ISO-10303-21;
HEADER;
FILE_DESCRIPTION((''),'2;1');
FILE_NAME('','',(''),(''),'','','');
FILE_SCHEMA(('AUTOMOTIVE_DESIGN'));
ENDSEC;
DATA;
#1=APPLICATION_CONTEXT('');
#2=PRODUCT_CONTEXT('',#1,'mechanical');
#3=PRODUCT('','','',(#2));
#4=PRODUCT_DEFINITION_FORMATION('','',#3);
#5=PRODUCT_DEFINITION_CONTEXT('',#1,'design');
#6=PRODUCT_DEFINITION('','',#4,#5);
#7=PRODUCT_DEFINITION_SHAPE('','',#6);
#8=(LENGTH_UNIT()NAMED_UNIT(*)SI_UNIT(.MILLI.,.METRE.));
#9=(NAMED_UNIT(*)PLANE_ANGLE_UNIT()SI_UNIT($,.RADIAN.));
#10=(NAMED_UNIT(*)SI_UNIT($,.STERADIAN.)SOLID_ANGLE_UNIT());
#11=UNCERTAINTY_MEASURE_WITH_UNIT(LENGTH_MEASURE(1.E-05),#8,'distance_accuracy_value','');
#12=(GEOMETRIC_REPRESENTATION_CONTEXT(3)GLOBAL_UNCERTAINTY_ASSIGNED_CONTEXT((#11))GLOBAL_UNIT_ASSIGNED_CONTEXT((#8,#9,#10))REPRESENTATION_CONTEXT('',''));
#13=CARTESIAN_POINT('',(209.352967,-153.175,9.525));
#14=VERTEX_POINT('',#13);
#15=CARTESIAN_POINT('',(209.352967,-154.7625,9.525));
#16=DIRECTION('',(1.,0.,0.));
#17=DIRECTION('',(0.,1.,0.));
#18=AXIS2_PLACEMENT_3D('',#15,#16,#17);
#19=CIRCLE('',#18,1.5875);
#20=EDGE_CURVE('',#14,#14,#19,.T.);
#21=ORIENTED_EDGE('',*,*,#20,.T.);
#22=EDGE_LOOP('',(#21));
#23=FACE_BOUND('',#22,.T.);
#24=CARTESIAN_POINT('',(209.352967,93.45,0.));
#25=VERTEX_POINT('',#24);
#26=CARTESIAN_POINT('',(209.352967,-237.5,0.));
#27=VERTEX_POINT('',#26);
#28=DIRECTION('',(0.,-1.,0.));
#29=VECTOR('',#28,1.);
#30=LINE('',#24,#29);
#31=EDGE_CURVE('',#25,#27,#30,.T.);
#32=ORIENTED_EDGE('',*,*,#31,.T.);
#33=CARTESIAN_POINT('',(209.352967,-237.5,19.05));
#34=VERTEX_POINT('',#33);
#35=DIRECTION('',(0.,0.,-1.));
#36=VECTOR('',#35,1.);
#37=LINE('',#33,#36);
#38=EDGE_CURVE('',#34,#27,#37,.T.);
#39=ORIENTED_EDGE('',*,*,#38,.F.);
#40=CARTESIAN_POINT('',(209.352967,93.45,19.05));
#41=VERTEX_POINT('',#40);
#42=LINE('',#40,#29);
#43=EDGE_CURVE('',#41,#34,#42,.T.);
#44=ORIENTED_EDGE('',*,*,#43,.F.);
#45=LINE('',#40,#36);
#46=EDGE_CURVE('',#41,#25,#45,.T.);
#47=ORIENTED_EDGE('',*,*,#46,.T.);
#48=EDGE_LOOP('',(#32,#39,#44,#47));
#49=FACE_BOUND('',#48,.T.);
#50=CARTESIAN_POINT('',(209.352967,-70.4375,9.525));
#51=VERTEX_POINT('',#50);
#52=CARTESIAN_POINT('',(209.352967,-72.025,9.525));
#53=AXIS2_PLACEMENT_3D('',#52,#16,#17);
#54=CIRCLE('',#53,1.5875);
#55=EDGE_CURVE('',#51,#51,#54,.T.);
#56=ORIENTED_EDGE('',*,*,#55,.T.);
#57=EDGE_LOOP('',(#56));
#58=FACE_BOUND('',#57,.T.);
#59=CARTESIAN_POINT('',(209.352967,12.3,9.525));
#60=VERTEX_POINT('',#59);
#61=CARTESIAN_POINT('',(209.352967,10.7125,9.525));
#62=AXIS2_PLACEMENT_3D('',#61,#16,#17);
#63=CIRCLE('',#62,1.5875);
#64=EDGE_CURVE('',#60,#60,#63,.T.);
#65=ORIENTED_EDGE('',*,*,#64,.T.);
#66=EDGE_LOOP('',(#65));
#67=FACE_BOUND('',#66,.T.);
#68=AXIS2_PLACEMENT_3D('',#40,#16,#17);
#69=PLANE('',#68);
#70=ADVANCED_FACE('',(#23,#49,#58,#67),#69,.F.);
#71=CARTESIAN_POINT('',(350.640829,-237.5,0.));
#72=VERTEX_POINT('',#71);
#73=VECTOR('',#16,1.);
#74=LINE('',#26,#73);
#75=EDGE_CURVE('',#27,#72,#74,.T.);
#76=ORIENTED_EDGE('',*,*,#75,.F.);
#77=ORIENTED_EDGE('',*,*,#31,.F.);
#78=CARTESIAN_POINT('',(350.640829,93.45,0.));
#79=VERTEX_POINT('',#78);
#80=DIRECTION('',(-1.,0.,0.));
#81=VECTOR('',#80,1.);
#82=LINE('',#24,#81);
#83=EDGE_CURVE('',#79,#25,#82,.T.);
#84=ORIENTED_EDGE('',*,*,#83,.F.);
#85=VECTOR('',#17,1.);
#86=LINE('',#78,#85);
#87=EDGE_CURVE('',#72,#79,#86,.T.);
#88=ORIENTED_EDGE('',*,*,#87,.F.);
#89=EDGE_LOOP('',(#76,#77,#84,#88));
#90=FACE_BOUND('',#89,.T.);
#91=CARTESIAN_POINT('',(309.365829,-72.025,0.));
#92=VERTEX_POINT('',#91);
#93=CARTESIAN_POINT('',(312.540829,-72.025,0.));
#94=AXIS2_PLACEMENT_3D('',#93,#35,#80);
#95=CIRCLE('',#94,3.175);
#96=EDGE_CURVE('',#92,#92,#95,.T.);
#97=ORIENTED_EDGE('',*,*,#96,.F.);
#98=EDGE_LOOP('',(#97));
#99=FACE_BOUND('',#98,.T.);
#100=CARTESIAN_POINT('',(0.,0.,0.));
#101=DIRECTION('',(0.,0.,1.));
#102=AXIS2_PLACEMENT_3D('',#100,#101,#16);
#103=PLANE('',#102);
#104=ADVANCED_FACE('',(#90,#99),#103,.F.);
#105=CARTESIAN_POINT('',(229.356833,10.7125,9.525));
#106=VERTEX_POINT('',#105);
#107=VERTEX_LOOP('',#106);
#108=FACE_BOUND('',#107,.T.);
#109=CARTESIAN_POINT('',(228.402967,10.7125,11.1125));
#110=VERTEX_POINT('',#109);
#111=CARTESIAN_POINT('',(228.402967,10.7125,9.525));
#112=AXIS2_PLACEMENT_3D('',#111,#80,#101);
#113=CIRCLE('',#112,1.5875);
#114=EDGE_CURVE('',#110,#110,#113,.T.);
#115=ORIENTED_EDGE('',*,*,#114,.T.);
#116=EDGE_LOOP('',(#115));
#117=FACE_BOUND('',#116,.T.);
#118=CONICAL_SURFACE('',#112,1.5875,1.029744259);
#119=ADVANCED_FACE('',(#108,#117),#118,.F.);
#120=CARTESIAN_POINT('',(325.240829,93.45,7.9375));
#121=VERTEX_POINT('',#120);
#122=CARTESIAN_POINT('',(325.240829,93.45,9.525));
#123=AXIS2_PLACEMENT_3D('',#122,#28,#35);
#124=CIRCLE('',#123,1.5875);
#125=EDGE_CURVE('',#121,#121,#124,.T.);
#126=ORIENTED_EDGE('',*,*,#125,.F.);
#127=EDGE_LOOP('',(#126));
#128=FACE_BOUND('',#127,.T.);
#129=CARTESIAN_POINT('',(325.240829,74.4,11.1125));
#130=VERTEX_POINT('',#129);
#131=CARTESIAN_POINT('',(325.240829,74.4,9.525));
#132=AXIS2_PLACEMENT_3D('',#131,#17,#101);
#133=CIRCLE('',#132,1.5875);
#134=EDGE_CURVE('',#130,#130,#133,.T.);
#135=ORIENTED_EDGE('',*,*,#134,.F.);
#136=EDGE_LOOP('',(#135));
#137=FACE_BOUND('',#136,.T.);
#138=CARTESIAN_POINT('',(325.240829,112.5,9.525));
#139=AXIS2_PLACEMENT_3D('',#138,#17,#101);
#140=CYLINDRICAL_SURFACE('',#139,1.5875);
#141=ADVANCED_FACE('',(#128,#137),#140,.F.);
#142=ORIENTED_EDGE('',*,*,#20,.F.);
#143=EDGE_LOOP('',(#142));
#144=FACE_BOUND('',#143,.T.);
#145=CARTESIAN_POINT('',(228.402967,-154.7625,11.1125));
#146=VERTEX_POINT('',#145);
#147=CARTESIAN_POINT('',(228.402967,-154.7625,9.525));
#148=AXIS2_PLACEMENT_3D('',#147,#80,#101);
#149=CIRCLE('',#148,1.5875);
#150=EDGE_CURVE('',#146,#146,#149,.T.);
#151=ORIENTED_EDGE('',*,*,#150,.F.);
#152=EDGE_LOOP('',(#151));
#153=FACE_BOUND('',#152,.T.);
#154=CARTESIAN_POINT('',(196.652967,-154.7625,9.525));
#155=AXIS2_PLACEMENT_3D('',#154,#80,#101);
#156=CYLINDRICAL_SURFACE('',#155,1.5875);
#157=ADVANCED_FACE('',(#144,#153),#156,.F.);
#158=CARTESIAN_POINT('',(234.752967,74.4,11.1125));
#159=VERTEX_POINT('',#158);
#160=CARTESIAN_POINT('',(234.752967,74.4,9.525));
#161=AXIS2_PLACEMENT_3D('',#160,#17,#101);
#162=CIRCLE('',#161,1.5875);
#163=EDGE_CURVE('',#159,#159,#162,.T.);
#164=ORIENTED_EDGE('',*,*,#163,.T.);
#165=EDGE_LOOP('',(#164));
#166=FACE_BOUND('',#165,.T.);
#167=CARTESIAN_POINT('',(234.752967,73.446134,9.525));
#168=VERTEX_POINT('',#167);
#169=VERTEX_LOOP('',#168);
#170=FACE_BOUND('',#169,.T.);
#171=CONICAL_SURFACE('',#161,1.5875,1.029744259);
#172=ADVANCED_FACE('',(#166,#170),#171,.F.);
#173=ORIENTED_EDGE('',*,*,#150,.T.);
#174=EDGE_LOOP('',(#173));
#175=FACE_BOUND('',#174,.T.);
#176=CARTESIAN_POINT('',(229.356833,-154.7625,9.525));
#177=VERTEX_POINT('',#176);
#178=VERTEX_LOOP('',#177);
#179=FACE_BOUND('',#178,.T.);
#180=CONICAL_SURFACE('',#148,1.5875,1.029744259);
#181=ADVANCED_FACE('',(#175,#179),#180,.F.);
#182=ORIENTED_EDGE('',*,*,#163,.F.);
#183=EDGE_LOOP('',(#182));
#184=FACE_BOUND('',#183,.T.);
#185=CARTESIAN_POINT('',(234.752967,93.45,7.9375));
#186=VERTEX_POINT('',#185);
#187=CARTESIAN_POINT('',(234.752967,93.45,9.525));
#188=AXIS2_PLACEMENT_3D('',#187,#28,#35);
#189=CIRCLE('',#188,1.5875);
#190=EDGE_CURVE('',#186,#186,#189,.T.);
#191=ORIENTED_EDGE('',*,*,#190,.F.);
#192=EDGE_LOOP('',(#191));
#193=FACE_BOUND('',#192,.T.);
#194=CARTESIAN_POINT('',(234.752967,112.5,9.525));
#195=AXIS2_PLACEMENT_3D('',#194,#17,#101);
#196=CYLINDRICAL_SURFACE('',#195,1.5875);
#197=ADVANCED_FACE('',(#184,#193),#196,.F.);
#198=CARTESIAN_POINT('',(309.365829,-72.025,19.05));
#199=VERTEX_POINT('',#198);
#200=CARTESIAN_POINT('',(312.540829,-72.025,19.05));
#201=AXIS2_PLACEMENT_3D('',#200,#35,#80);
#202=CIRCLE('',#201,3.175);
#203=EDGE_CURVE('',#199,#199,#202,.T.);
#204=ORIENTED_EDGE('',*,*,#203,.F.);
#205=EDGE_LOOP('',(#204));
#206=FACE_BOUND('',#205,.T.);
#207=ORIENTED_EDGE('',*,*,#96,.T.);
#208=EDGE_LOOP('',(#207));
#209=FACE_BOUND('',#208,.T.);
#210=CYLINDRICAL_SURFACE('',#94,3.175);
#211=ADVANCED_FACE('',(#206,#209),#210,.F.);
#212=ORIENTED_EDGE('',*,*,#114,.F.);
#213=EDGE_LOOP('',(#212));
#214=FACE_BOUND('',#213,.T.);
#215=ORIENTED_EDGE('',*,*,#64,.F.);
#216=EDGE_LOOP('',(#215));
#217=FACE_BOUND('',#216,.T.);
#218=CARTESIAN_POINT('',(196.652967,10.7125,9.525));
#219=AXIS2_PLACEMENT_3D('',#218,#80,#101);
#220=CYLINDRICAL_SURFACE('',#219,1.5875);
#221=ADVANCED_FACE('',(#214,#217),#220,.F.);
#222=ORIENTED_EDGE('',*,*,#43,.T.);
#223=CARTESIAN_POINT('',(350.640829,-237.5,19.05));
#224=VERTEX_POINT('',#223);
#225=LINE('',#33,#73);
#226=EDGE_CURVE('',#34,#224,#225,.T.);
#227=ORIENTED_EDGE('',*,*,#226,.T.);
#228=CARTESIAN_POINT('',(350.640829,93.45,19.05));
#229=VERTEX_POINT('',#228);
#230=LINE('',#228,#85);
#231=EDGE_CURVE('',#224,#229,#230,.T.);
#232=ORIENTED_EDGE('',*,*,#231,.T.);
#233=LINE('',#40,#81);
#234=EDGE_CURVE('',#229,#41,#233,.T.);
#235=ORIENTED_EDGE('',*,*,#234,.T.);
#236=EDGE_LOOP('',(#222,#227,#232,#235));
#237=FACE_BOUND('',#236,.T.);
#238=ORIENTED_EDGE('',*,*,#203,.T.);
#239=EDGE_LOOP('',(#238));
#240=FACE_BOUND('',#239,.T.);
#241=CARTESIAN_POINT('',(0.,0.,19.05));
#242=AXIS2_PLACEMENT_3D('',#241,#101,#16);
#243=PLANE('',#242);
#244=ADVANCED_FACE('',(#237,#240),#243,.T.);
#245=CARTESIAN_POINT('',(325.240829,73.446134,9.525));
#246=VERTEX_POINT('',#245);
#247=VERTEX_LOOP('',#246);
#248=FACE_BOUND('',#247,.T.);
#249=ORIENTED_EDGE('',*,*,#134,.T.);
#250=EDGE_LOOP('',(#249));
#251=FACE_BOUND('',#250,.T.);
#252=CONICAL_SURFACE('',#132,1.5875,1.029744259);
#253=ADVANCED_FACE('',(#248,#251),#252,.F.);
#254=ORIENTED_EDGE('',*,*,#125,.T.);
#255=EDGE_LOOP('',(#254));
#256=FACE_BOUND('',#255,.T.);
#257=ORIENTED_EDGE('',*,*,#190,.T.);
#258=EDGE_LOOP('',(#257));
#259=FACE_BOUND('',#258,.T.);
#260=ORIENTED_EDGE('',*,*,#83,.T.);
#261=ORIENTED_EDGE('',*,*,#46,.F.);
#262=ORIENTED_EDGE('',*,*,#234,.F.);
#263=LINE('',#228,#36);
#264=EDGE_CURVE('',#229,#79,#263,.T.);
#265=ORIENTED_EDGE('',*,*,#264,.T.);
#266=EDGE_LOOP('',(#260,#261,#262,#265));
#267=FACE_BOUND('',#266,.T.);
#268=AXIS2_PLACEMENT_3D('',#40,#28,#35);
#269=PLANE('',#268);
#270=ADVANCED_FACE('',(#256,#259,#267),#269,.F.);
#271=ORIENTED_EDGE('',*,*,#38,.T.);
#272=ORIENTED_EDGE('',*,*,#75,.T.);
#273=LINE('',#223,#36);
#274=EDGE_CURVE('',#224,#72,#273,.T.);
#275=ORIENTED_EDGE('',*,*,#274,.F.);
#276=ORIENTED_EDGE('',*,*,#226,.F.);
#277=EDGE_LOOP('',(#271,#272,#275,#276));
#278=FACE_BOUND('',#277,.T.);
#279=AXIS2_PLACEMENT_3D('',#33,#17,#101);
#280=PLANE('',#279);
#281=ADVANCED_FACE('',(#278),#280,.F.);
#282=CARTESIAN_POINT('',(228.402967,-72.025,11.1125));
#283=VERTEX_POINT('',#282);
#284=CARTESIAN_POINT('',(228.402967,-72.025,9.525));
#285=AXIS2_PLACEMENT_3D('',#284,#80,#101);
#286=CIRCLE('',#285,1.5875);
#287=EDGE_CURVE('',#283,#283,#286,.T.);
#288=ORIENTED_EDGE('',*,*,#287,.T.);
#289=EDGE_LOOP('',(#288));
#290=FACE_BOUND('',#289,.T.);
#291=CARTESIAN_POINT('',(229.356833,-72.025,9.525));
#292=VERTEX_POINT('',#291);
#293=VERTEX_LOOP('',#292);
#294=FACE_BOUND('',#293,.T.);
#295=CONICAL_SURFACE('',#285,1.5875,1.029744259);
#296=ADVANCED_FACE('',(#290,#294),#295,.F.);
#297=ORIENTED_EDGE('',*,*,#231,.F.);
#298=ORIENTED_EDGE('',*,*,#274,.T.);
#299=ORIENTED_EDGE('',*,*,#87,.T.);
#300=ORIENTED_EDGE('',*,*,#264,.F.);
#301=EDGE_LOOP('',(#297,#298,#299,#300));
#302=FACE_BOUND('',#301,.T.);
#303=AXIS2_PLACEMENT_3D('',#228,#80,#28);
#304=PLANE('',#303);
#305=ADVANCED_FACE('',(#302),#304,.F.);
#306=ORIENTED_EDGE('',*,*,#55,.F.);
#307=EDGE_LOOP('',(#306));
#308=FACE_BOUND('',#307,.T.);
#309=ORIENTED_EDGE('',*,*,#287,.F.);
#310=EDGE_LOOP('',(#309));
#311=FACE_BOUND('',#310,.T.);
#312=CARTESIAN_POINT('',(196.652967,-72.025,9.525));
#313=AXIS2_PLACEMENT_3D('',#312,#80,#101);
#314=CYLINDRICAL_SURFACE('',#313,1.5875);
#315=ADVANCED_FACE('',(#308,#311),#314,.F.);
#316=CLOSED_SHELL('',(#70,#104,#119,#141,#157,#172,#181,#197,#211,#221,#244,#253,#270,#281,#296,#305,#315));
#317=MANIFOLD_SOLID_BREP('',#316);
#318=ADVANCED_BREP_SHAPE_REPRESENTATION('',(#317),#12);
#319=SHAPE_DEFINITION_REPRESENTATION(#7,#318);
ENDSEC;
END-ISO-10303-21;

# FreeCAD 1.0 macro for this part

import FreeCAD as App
import Part
import Sketcher
Q = App.Units.Quantity

doc = App.newDocument("Part")
body = doc.addObject("PartDesign::Body", "Body")

# Sketch on XY plane
sketch1 = doc.addObject("Sketcher::SketchObject", "Sketch")
body.addObject(sketch1)
sketch1.AttachmentSupport = (doc.XY_Plane, [""])
sketch1.MapMode = "FlatFace"
sketch1.addGeometry(Part.LineSegment(App.Vector(209, 93, 0), App.Vector(209, -237, 0)), False)
sketch1.addGeometry(Part.LineSegment(App.Vector(209, -237, 0), App.Vector(351, -237, 0)), False)
sketch1.addGeometry(Part.LineSegment(App.Vector(351, -237, 0), App.Vector(351, 93, 0)), False)
sketch1.addGeometry(Part.LineSegment(App.Vector(351, 93, 0), App.Vector(209, 93, 0)), False)
sketch1.addConstraint(Sketcher.Constraint("Coincident", 0, 2, 1, 1))
sketch1.addConstraint(Sketcher.Constraint("Coincident", 1, 2, 2, 1))
sketch1.addConstraint(Sketcher.Constraint("Coincident", 2, 2, 3, 1))
sketch1.addConstraint(Sketcher.Constraint("Coincident", 3, 2, 0, 1))
sketch1.addConstraint(Sketcher.Constraint("Vertical", 0))
sketch1.addConstraint(Sketcher.Constraint("Horizontal", 1))
sketch1.addConstraint(Sketcher.Constraint("Vertical", 2))
sketch1.addConstraint(Sketcher.Constraint("Horizontal", 3))
sketch1.addConstraint(Sketcher.Constraint("DistanceY", 0, 2, 0, 1, Q("330.95 mm")))
sketch1.addConstraint(Sketcher.Constraint("DistanceY", 0, 2, -1, 1, Q("237.5 mm")))
sketch1.addConstraint(Sketcher.Constraint("DistanceX", 1, 1, 1, 2, Q("141.287862 mm")))
sketch1.addConstraint(Sketcher.Constraint("DistanceX", -1, 1, 1, 2, Q("350.640829 mm")))
pad1 = doc.addObject("PartDesign::Pad", "Pad")
body.addObject(pad1)
pad1.Profile = sketch1
pad1.Length = Q("0.75 in")

# Sketch on YZ plane
sketch2 = doc.addObject("Sketcher::SketchObject", "Sketch001")
body.addObject(sketch2)
sketch2.AttachmentSupport = (doc.YZ_Plane, [""])
sketch2.MapMode = "FlatFace"
sketch2.AttachmentOffset = App.Placement(App.Vector(0, 0, 196.652967), App.Rotation())
sketch2.addGeometry(Part.Circle(App.Vector(103, -299.7, 0), App.Vector(0, 0, 1), 1.6), False)
sketch2.addGeometry(Part.Circle(App.Vector(103, -163.6, 0), App.Vector(0, 0, 1), 1.6), False)
sketch2.addGeometry(Part.Circle(App.Vector(103, -27.5, 0), App.Vector(0, 0, 1), 1.6), False)
sketch2.addGeometry(Part.Circle(App.Vector(9.5, -393.4, 0), App.Vector(0, 0, 1), 1.6), False)
sketch2.addGeometry(Part.Circle(App.Vector(9.5, -266.1, 0), App.Vector(0, 0, 1), 1.6), False)
sketch2.addGeometry(Part.Circle(App.Vector(-9.5, -276.7, 0), App.Vector(0, 0, 1), 1.6), False)
sketch2.addGeometry(Part.Circle(App.Vector(-9.5, -382.8, 0), App.Vector(0, 0, 1), 1.6), False)
sketch2.addGeometry(Part.Circle(App.Vector(-134.5, -382.8, 0), App.Vector(0, 0, 1), 1.6), False)
sketch2.addGeometry(Part.Circle(App.Vector(-134.5, -276.7, 0), App.Vector(0, 0, 1), 1.6), False)
sketch2.addGeometry(Part.Circle(App.Vector(-153.6, -266.1, 0), App.Vector(0, 0, 1), 1.6), False)
sketch2.addGeometry(Part.Circle(App.Vector(-153.6, -393.4, 0), App.Vector(0, 0, 1), 1.6), False)
sketch2.addGeometry(Part.Circle(App.Vector(-247, -27.5, 0), App.Vector(0, 0, 1), 1.6), False)
sketch2.addGeometry(Part.Circle(App.Vector(-247, -163.6, 0), App.Vector(0, 0, 1), 1.6), False)
sketch2.addGeometry(Part.Circle(App.Vector(-247, -299.7, 0), App.Vector(0, 0, 1), 1.6), False)
sketch2.addGeometry(Part.Circle(App.Vector(-154.8, -214.1, 0), App.Vector(0, 0, 1), 1.6), False)
sketch2.addGeometry(Part.Circle(App.Vector(-72, -214.1, 0), App.Vector(0, 0, 1), 1.6), False)
sketch2.addGeometry(Part.Circle(App.Vector(10.7, -214.1, 0), App.Vector(0, 0, 1), 1.6), False)
sketch2.addGeometry(Part.Circle(App.Vector(-72, 9.5, 0), App.Vector(0, 0, 1), 1.6), False)
sketch2.addGeometry(Part.Circle(App.Vector(-154.8, 9.5, 0), App.Vector(0, 0, 1), 1.6), False)
sketch2.addGeometry(Part.Circle(App.Vector(10.7, 9.5, 0), App.Vector(0, 0, 1), 1.6), False)
sketch2.addConstraint(Sketcher.Constraint("Equal", 0, 1))
sketch2.addConstraint(Sketcher.Constraint("Equal", 1, 2))
sketch2.addConstraint(Sketcher.Constraint("Equal", 2, 3))
sketch2.addConstraint(Sketcher.Constraint("Equal", 3, 4))
sketch2.addConstraint(Sketcher.Constraint("Equal", 4, 5))
sketch2.addConstraint(Sketcher.Constraint("Equal", 5, 6))
sketch2.addConstraint(Sketcher.Constraint("Equal", 6, 7))
sketch2.addConstraint(Sketcher.Constraint("Equal", 7, 8))
sketch2.addConstraint(Sketcher.Constraint("Equal", 8, 9))
sketch2.addConstraint(Sketcher.Constraint("Equal", 9, 10))
sketch2.addConstraint(Sketcher.Constraint("Equal", 10, 11))
sketch2.addConstraint(Sketcher.Constraint("Equal", 11, 12))
sketch2.addConstraint(Sketcher.Constraint("Equal", 12, 13))
sketch2.addConstraint(Sketcher.Constraint("Equal", 13, 14))
sketch2.addConstraint(Sketcher.Constraint("Equal", 14, 15))
sketch2.addConstraint(Sketcher.Constraint("Equal", 15, 16))
sketch2.addConstraint(Sketcher.Constraint("Equal", 16, 17))
sketch2.addConstraint(Sketcher.Constraint("Equal", 17, 18))
sketch2.addConstraint(Sketcher.Constraint("Equal", 18, 19))
sketch2.addConstraint(Sketcher.Constraint("Horizontal", 6, 3, 7, 3))
sketch2.addConstraint(Sketcher.Constraint("Horizontal", 5, 3, 8, 3))
sketch2.addConstraint(Sketcher.Constraint("Horizontal", 4, 3, 9, 3))
sketch2.addConstraint(Sketcher.Constraint("Horizontal", 3, 3, 10, 3))
sketch2.addConstraint(Sketcher.Constraint("Horizontal", 2, 3, 11, 3))
sketch2.addConstraint(Sketcher.Constraint("Horizontal", 1, 3, 12, 3))
sketch2.addConstraint(Sketcher.Constraint("Horizontal", 0, 3, 13, 3))
sketch2.addConstraint(Sketcher.Constraint("Horizontal", 14, 3, 15, 3))
sketch2.addConstraint(Sketcher.Constraint("Horizontal", 15, 3, 16, 3))
sketch2.addConstraint(Sketcher.Constraint("Horizontal", 17, 3, 18, 3))
sketch2.addConstraint(Sketcher.Constraint("Horizontal", 18, 3, 19, 3))
sketch2.addConstraint(Sketcher.Constraint("Vertical", 0, 3, 1, 3))
sketch2.addConstraint(Sketcher.Constraint("Vertical", 1, 3, 2, 3))
sketch2.addConstraint(Sketcher.Constraint("Vertical", 3, 3, 4, 3))
sketch2.addConstraint(Sketcher.Constraint("Vertical", 5, 3, 6, 3))
sketch2.addConstraint(Sketcher.Constraint("Vertical", 7, 3, 8, 3))
sketch2.addConstraint(Sketcher.Constraint("Vertical", 9, 3, 10, 3))
sketch2.addConstraint(Sketcher.Constraint("Vertical", 11, 3, 12, 3))
sketch2.addConstraint(Sketcher.Constraint("Vertical", 12, 3, 13, 3))
sketch2.addConstraint(Sketcher.Constraint("Vertical", 15, 3, 17, 3))
sketch2.addConstraint(Sketcher.Constraint("Vertical", 14, 3, 18, 3))
sketch2.addConstraint(Sketcher.Constraint("Vertical", 16, 3, 19, 3))
sketch2.addConstraint(Sketcher.Constraint("Diameter", 0, Q("0.125 in")))
sketch2.addConstraint(Sketcher.Constraint("DistanceX", 5, 3, 4, 3, Q("0.75 in")))
sketch2.addConstraint(Sketcher.Constraint("DistanceX", 9, 3, 8, 3, Q("0.75 in")))
sketch2.addConstraint(Sketcher.Constraint("DistanceX", -1, 1, 3, 3, Q("0.375 in")))
sketch2.addConstraint(Sketcher.Constraint("DistanceY", -1, 1, 17, 3, Q("0.375 in")))
sketch2.addConstraint(Sketcher.Constraint("DistanceX", -1, 1, 0, 3, Q("102.975 mm")))
sketch2.addConstraint(Sketcher.Constraint("DistanceX", 7, 3, -1, 1, Q("134.525 mm")))
sketch2.addConstraint(Sketcher.Constraint("DistanceX", 11, 3, -1, 1, Q("247.025 mm")))
sketch2.addConstraint(Sketcher.Constraint("DistanceX", 14, 3, -1, 1, Q("154.7625 mm")))
sketch2.addConstraint(Sketcher.Constraint("DistanceX", 15, 3, -1, 1, Q("72.025 mm")))
sketch2.addConstraint(Sketcher.Constraint("DistanceX", -1, 1, 16, 3, Q("10.7125 mm")))
sketch2.addConstraint(Sketcher.Constraint("DistanceY", 0, 3, 5, 3, Q("23.007602 mm")))
sketch2.addConstraint(Sketcher.Constraint("DistanceY", 1, 3, -1, 1, Q("163.574489 mm")))
sketch2.addConstraint(Sketcher.Constraint("DistanceY", 14, 3, -1, 1, Q("214.12185 mm")))
sketch2.addConstraint(Sketcher.Constraint("DistanceY", 0, 3, 2, 3, Q("272.247489 mm")))
sketch2.addConstraint(Sketcher.Constraint("DistanceY", 3, 3, 0, 3, Q("93.688719 mm")))
sketch2.addConstraint(Sketcher.Constraint("DistanceY", 0, 3, 4, 3, Q("33.616358 mm")))
sketch2.addConstraint(Sketcher.Constraint("DistanceY", 6, 3, 4, 3, Q("116.696321 mm")))
sketch2.addConstraint(Sketcher.Constraint("DistanceY", 0, 3, -1, 1, Q("299.698234 mm")))
doc.recompute()
hole = doc.addObject("PartDesign::Hole", "Hole")
body.addObject(hole)
hole.Profile = sketch2
hole.ThreadType = "None"
hole.Diameter = Q("0.125 in")
hole.DepthType = "Dimension"
hole.Depth = Q("1.25 in")
hole.DrillPoint = "Angled"
hole.DrillPointAngle = 118
hole.HoleCutType = "Countersink"
hole.HoleCutDiameter = Q("0.4 in")
hole.HoleCutCountersinkAngle = 82
hole.Reversed = True

# Sketch on XZ plane
sketch3 = doc.addObject("Sketcher::SketchObject", "Sketch002")
body.addObject(sketch3)
sketch3.AttachmentSupport = (doc.XZ_Plane, [""])
sketch3.MapMode = "FlatFace"
sketch3.AttachmentOffset = App.Placement(App.Vector(0, 0, -112.5), App.Rotation())
sketch3.addGeometry(Part.Circle(App.Vector(-180.7, 263.7, 0), App.Vector(0, 0, 1), 1.6), False)
sketch3.addGeometry(Part.Circle(App.Vector(-158.7, 336.3, 0), App.Vector(0, 0, 1), 1.6), False)
sketch3.addGeometry(Part.Circle(App.Vector(171.1, 157.2, 0), App.Vector(0, 0, 1), 1.6), False)
sketch3.addGeometry(Part.Circle(App.Vector(187.1, 210.2, 0), App.Vector(0, 0, 1), 1.6), False)
sketch3.addGeometry(Part.Circle(App.Vector(234.8, 44.5, 0), App.Vector(0, 0, 1), 1.6), False)
sketch3.addGeometry(Part.Circle(App.Vector(325.2, 44.5, 0), App.Vector(0, 0, 1), 1.6), False)
sketch3.addGeometry(Part.Circle(App.Vector(325.2, 9.5, 0), App.Vector(0, 0, 1), 1.6), False)
sketch3.addGeometry(Part.Circle(App.Vector(325.2, -214.1, 0), App.Vector(0, 0, 1), 1.6), False)
sketch3.addGeometry(Part.Circle(App.Vector(234.8, 9.5, 0), App.Vector(0, 0, 1), 1.6), False)
sketch3.addGeometry(Part.Circle(App.Vector(234.8, -214.1, 0), App.Vector(0, 0, 1), 1.6), False)
sketch3.addConstraint(Sketcher.Constraint("Equal", 0, 1))
sketch3.addConstraint(Sketcher.Constraint("Equal", 1, 2))
sketch3.addConstraint(Sketcher.Constraint("Equal", 2, 3))
sketch3.addConstraint(Sketcher.Constraint("Equal", 3, 4))
sketch3.addConstraint(Sketcher.Constraint("Equal", 4, 5))
sketch3.addConstraint(Sketcher.Constraint("Equal", 5, 6))
sketch3.addConstraint(Sketcher.Constraint("Equal", 6, 7))
sketch3.addConstraint(Sketcher.Constraint("Equal", 7, 8))
sketch3.addConstraint(Sketcher.Constraint("Equal", 8, 9))
sketch3.addConstraint(Sketcher.Constraint("Horizontal", 4, 3, 5, 3))
sketch3.addConstraint(Sketcher.Constraint("Horizontal", 6, 3, 8, 3))
sketch3.addConstraint(Sketcher.Constraint("Horizontal", 7, 3, 9, 3))
sketch3.addConstraint(Sketcher.Constraint("Vertical", 5, 3, 6, 3))
sketch3.addConstraint(Sketcher.Constraint("Vertical", 6, 3, 7, 3))
sketch3.addConstraint(Sketcher.Constraint("Vertical", 4, 3, 8, 3))
sketch3.addConstraint(Sketcher.Constraint("Vertical", 8, 3, 9, 3))
sketch3.addConstraint(Sketcher.Constraint("Diameter", 0, Q("0.125 in")))
sketch3.addConstraint(Sketcher.Constraint("DistanceY", -1, 1, 4, 3, Q("1.75 in")))
sketch3.addConstraint(Sketcher.Constraint("DistanceY", -1, 1, 6, 3, Q("0.375 in")))
sketch3.addConstraint(Sketcher.Constraint("DistanceX", 0, 3, -1, 1, Q("180.697638 mm")))
sketch3.addConstraint(Sketcher.Constraint("DistanceX", 1, 3, -1, 1, Q("158.725262 mm")))
sketch3.addConstraint(Sketcher.Constraint("DistanceY", -1, 1, 2, 3, Q("157.249591 mm")))
sketch3.addConstraint(Sketcher.Constraint("DistanceX", -1, 1, 5, 3, Q("325.24083 mm")))
sketch3.addConstraint(Sketcher.Constraint("DistanceY", 7, 3, -1, 1, Q("214.12185 mm")))
sketch3.addConstraint(Sketcher.Constraint("DistanceX", 2, 3, 3, 3, Q("16.033992 mm")))
sketch3.addConstraint(Sketcher.Constraint("DistanceY", 2, 3, 3, 3, Q("52.977742 mm")))
sketch3.addConstraint(Sketcher.Constraint("DistanceX", 1, 3, 3, 3, Q("345.859279 mm")))
sketch3.addConstraint(Sketcher.Constraint("DistanceY", 3, 3, 0, 3, Q("53.49567 mm")))
sketch3.addConstraint(Sketcher.Constraint("DistanceX", 2, 3, 4, 3, Q("63.652942 mm")))
sketch3.addConstraint(Sketcher.Constraint("DistanceY", -1, 1, 1, 3, Q("336.321698 mm")))
doc.recompute()
hole2 = doc.addObject("PartDesign::Hole", "Hole001")
body.addObject(hole2)
hole2.Profile = sketch3
hole2.ThreadType = "None"
hole2.Diameter = Q("0.125 in")
hole2.DepthType = "Dimension"
hole2.Depth = Q("1.5 in")
hole2.DrillPoint = "Angled"
hole2.DrillPointAngle = 118
hole2.HoleCutType = "Countersink"
hole2.HoleCutDiameter = Q("0.4 in")
hole2.HoleCutCountersinkAngle = 82
hole2.Reversed = True

# Sketch on XY plane
sketch4 = doc.addObject("Sketcher::SketchObject", "Sketch003")
body.addObject(sketch4)
sketch4.AttachmentSupport = (doc.XY_Plane, [""])
sketch4.MapMode = "FlatFace"
sketch4.addGeometry(Part.Circle(App.Vector(312.5, -72, 0), App.Vector(0, 0, 1), 3.2), False)
sketch4.addConstraint(Sketcher.Constraint("Diameter", 0, Q("0.25 in")))
sketch4.addConstraint(Sketcher.Constraint("DistanceY", 0, 3, -1, 1, Q("72.025 mm")))
sketch4.addConstraint(Sketcher.Constraint("DistanceX", -1, 1, 0, 3, Q("312.540829 mm")))
doc.recompute()
hole3 = doc.addObject("PartDesign::Hole", "Hole002")
body.addObject(hole3)
hole3.Profile = sketch4
hole3.ThreadType = "None"
hole3.Diameter = Q("0.25 in")
hole3.DepthType = "ThroughAll"
hole3.Reversed = True

# Sketch on YZ plane
sketch5 = doc.addObject("Sketcher::SketchObject", "Sketch004")
body.addObject(sketch5)
sketch5.AttachmentSupport = (doc.YZ_Plane, [""])
sketch5.MapMode = "FlatFace"
sketch5.AttachmentOffset = App.Placement(App.Vector(0, 0, 196.652967), App.Rotation())
sketch5.addGeometry(Part.Circle(App.Vector(103, -76.1, 0), App.Vector(0, 0, 1), 1.6), False)
sketch5.addGeometry(Part.Circle(App.Vector(103, 60.1, 0), App.Vector(0, 0, 1), 1.6), False)
sketch5.addGeometry(Part.Circle(App.Vector(103, 196.2, 0), App.Vector(0, 0, 1), 1.6), False)
sketch5.addGeometry(Part.Circle(App.Vector(9.5, -169.7, 0), App.Vector(0, 0, 1), 1.6), False)
sketch5.addGeometry(Part.Circle(App.Vector(9.5, -42.4, 0), App.Vector(0, 0, 1), 1.6), False)
sketch5.addGeometry(Part.Circle(App.Vector(-9.5, -53, 0), App.Vector(0, 0, 1), 1.6), False)
sketch5.addGeometry(Part.Circle(App.Vector(-9.5, -159.1, 0), App.Vector(0, 0, 1), 1.6), False)
sketch5.addGeometry(Part.Circle(App.Vector(-134.5, -159.1, 0), App.Vector(0, 0, 1), 1.6), False)
sketch5.addGeometry(Part.Circle(App.Vector(-134.5, -53, 0), App.Vector(0, 0, 1), 1.6), False)
sketch5.addGeometry(Part.Circle(App.Vector(-153.6, -42.4, 0), App.Vector(0, 0, 1), 1.6), False)
sketch5.addGeometry(Part.Circle(App.Vector(-153.6, -169.7, 0), App.Vector(0, 0, 1), 1.6), False)
sketch5.addGeometry(Part.Circle(App.Vector(-247, 196.2, 0), App.Vector(0, 0, 1), 1.6), False)
sketch5.addGeometry(Part.Circle(App.Vector(-247, 60.1, 0), App.Vector(0, 0, 1), 1.6), False)
sketch5.addGeometry(Part.Circle(App.Vector(-247, -76.1, 0), App.Vector(0, 0, 1), 1.6), False)
sketch5.addGeometry(Part.Circle(App.Vector(-154.8, 9.5, 0), App.Vector(0, 0, 1), 1.6), False)
sketch5.addGeometry(Part.Circle(App.Vector(-72, 9.5, 0), App.Vector(0, 0, 1), 1.6), False)
sketch5.addGeometry(Part.Circle(App.Vector(10.7, 9.5, 0), App.Vector(0, 0, 1), 1.6), False)
sketch5.addGeometry(Part.Circle(App.Vector(-72, 233.2, 0), App.Vector(0, 0, 1), 1.6), False)
sketch5.addGeometry(Part.Circle(App.Vector(-154.8, 233.2, 0), App.Vector(0, 0, 1), 1.6), False)
sketch5.addGeometry(Part.Circle(App.Vector(10.7, 233.2, 0), App.Vector(0, 0, 1), 1.6), False)
sketch5.addConstraint(Sketcher.Constraint("Equal", 0, 1))
sketch5.addConstraint(Sketcher.Constraint("Equal", 1, 2))
sketch5.addConstraint(Sketcher.Constraint("Equal", 2, 3))
sketch5.addConstraint(Sketcher.Constraint("Equal", 3, 4))
sketch5.addConstraint(Sketcher.Constraint("Equal", 4, 5))
sketch5.addConstraint(Sketcher.Constraint("Equal", 5, 6))
sketch5.addConstraint(Sketcher.Constraint("Equal", 6, 7))
sketch5.addConstraint(Sketcher.Constraint("Equal", 7, 8))
sketch5.addConstraint(Sketcher.Constraint("Equal", 8, 9))
sketch5.addConstraint(Sketcher.Constraint("Equal", 9, 10))
sketch5.addConstraint(Sketcher.Constraint("Equal", 10, 11))
sketch5.addConstraint(Sketcher.Constraint("Equal", 11, 12))
sketch5.addConstraint(Sketcher.Constraint("Equal", 12, 13))
sketch5.addConstraint(Sketcher.Constraint("Equal", 13, 14))
sketch5.addConstraint(Sketcher.Constraint("Equal", 14, 15))
sketch5.addConstraint(Sketcher.Constraint("Equal", 15, 16))
sketch5.addConstraint(Sketcher.Constraint("Equal", 16, 17))
sketch5.addConstraint(Sketcher.Constraint("Equal", 17, 18))
sketch5.addConstraint(Sketcher.Constraint("Equal", 18, 19))
sketch5.addConstraint(Sketcher.Constraint("Horizontal", 6, 3, 7, 3))
sketch5.addConstraint(Sketcher.Constraint("Horizontal", 5, 3, 8, 3))
sketch5.addConstraint(Sketcher.Constraint("Horizontal", 4, 3, 9, 3))
sketch5.addConstraint(Sketcher.Constraint("Horizontal", 3, 3, 10, 3))
sketch5.addConstraint(Sketcher.Constraint("Horizontal", 2, 3, 11, 3))
sketch5.addConstraint(Sketcher.Constraint("Horizontal", 1, 3, 12, 3))
sketch5.addConstraint(Sketcher.Constraint("Horizontal", 0, 3, 13, 3))
sketch5.addConstraint(Sketcher.Constraint("Horizontal", 14, 3, 15, 3))
sketch5.addConstraint(Sketcher.Constraint("Horizontal", 15, 3, 16, 3))
sketch5.addConstraint(Sketcher.Constraint("Horizontal", 17, 3, 18, 3))
sketch5.addConstraint(Sketcher.Constraint("Horizontal", 18, 3, 19, 3))
sketch5.addConstraint(Sketcher.Constraint("Vertical", 0, 3, 1, 3))
sketch5.addConstraint(Sketcher.Constraint("Vertical", 1, 3, 2, 3))
sketch5.addConstraint(Sketcher.Constraint("Vertical", 3, 3, 4, 3))
sketch5.addConstraint(Sketcher.Constraint("Vertical", 5, 3, 6, 3))
sketch5.addConstraint(Sketcher.Constraint("Vertical", 7, 3, 8, 3))
sketch5.addConstraint(Sketcher.Constraint("Vertical", 9, 3, 10, 3))
sketch5.addConstraint(Sketcher.Constraint("Vertical", 11, 3, 12, 3))
sketch5.addConstraint(Sketcher.Constraint("Vertical", 12, 3, 13, 3))
sketch5.addConstraint(Sketcher.Constraint("Vertical", 15, 3, 17, 3))
sketch5.addConstraint(Sketcher.Constraint("Vertical", 14, 3, 18, 3))
sketch5.addConstraint(Sketcher.Constraint("Vertical", 16, 3, 19, 3))
sketch5.addConstraint(Sketcher.Constraint("Diameter", 0, Q("0.125 in")))
sketch5.addConstraint(Sketcher.Constraint("DistanceX", 5, 3, 4, 3, Q("0.75 in")))
sketch5.addConstraint(Sketcher.Constraint("DistanceX", 9, 3, 8, 3, Q("0.75 in")))
sketch5.addConstraint(Sketcher.Constraint("DistanceX", -1, 1, 3, 3, Q("0.375 in")))
sketch5.addConstraint(Sketcher.Constraint("DistanceY", -1, 1, 14, 3, Q("0.375 in")))
sketch5.addConstraint(Sketcher.Constraint("DistanceX", -1, 1, 0, 3, Q("102.975 mm")))
sketch5.addConstraint(Sketcher.Constraint("DistanceX", 7, 3, -1, 1, Q("134.525 mm")))
sketch5.addConstraint(Sketcher.Constraint("DistanceX", 11, 3, -1, 1, Q("247.025 mm")))
sketch5.addConstraint(Sketcher.Constraint("DistanceX", 14, 3, -1, 1, Q("154.7625 mm")))
sketch5.addConstraint(Sketcher.Constraint("DistanceX", 15, 3, -1, 1, Q("72.025 mm")))
sketch5.addConstraint(Sketcher.Constraint("DistanceX", -1, 1, 16, 3, Q("10.7125 mm")))
sketch5.addConstraint(Sketcher.Constraint("DistanceY", 0, 3, 5, 3, Q("23.007602 mm")))
sketch5.addConstraint(Sketcher.Constraint("DistanceY", -1, 1, 1, 3, Q("60.072361 mm")))
sketch5.addConstraint(Sketcher.Constraint("DistanceY", -1, 1, 17, 3, Q("233.17185 mm")))
sketch5.addConstraint(Sketcher.Constraint("DistanceY", 0, 3, 2, 3, Q("272.247489 mm")))
sketch5.addConstraint(Sketcher.Constraint("DistanceY", 3, 3, 0, 3, Q("93.688719 mm")))
sketch5.addConstraint(Sketcher.Constraint("DistanceY", 0, 3, 4, 3, Q("33.616358 mm")))
sketch5.addConstraint(Sketcher.Constraint("DistanceY", 6, 3, 4, 3, Q("116.696321 mm")))
sketch5.addConstraint(Sketcher.Constraint("DistanceY", 0, 3, -1, 1, Q("76.051384 mm")))
doc.recompute()
hole4 = doc.addObject("PartDesign::Hole", "Hole003")
body.addObject(hole4)
hole4.Profile = sketch5
hole4.ThreadType = "None"
hole4.Diameter = Q("0.125 in")
hole4.DepthType = "Dimension"
hole4.Depth = Q("1.25 in")
hole4.DrillPoint = "Angled"
hole4.DrillPointAngle = 118
hole4.HoleCutType = "Countersink"
hole4.HoleCutDiameter = Q("0.4 in")
hole4.HoleCutCountersinkAngle = 82
hole4.Reversed = True

# Sketch on XZ plane
sketch6 = doc.addObject("Sketcher::SketchObject", "Sketch005")
body.addObject(sketch6)
sketch6.AttachmentSupport = (doc.XZ_Plane, [""])
sketch6.MapMode = "FlatFace"
sketch6.AttachmentOffset = App.Placement(App.Vector(0, 0, -112.5), App.Rotation())
sketch6.addGeometry(Part.Circle(App.Vector(-180.7, 487.4, 0), App.Vector(0, 0, 1), 1.6), False)
sketch6.addGeometry(Part.Circle(App.Vector(-158.7, 560, 0), App.Vector(0, 0, 1), 1.6), False)
sketch6.addGeometry(Part.Circle(App.Vector(171.1, 380.9, 0), App.Vector(0, 0, 1), 1.6), False)
sketch6.addGeometry(Part.Circle(App.Vector(187.1, 433.9, 0), App.Vector(0, 0, 1), 1.6), False)
sketch6.addGeometry(Part.Circle(App.Vector(234.8, 268.1, 0), App.Vector(0, 0, 1), 1.6), False)
sketch6.addGeometry(Part.Circle(App.Vector(325.2, 268.1, 0), App.Vector(0, 0, 1), 1.6), False)
sketch6.addGeometry(Part.Circle(App.Vector(325.2, 233.2, 0), App.Vector(0, 0, 1), 1.6), False)
sketch6.addGeometry(Part.Circle(App.Vector(325.2, 9.5, 0), App.Vector(0, 0, 1), 1.6), False)
sketch6.addGeometry(Part.Circle(App.Vector(234.8, 233.2, 0), App.Vector(0, 0, 1), 1.6), False)
sketch6.addGeometry(Part.Circle(App.Vector(234.8, 9.5, 0), App.Vector(0, 0, 1), 1.6), False)
sketch6.addConstraint(Sketcher.Constraint("Equal", 0, 1))
sketch6.addConstraint(Sketcher.Constraint("Equal", 1, 2))
sketch6.addConstraint(Sketcher.Constraint("Equal", 2, 3))
sketch6.addConstraint(Sketcher.Constraint("Equal", 3, 4))
sketch6.addConstraint(Sketcher.Constraint("Equal", 4, 5))
sketch6.addConstraint(Sketcher.Constraint("Equal", 5, 6))
sketch6.addConstraint(Sketcher.Constraint("Equal", 6, 7))
sketch6.addConstraint(Sketcher.Constraint("Equal", 7, 8))
sketch6.addConstraint(Sketcher.Constraint("Equal", 8, 9))
sketch6.addConstraint(Sketcher.Constraint("Horizontal", 4, 3, 5, 3))
sketch6.addConstraint(Sketcher.Constraint("Horizontal", 6, 3, 8, 3))
sketch6.addConstraint(Sketcher.Constraint("Horizontal", 7, 3, 9, 3))
sketch6.addConstraint(Sketcher.Constraint("Vertical", 5, 3, 6, 3))
sketch6.addConstraint(Sketcher.Constraint("Vertical", 6, 3, 7, 3))
sketch6.addConstraint(Sketcher.Constraint("Vertical", 4, 3, 8, 3))
sketch6.addConstraint(Sketcher.Constraint("Vertical", 8, 3, 9, 3))
sketch6.addConstraint(Sketcher.Constraint("Diameter", 0, Q("0.125 in")))
sketch6.addConstraint(Sketcher.Constraint("DistanceY", -1, 1, 7, 3, Q("0.375 in")))
sketch6.addConstraint(Sketcher.Constraint("DistanceY", 6, 3, 5, 3, Q("1.375 in")))
sketch6.addConstraint(Sketcher.Constraint("DistanceX", 0, 3, -1, 1, Q("180.697638 mm")))
sketch6.addConstraint(Sketcher.Constraint("DistanceX", 1, 3, -1, 1, Q("158.725262 mm")))
sketch6.addConstraint(Sketcher.Constraint("DistanceY", -1, 1, 2, 3, Q("380.896441 mm")))
sketch6.addConstraint(Sketcher.Constraint("DistanceY", -1, 1, 4, 3, Q("268.09685 mm")))
sketch6.addConstraint(Sketcher.Constraint("DistanceX", -1, 1, 5, 3, Q("325.24083 mm")))
sketch6.addConstraint(Sketcher.Constraint("DistanceX", 2, 3, 3, 3, Q("16.033992 mm")))
sketch6.addConstraint(Sketcher.Constraint("DistanceY", 2, 3, 3, 3, Q("52.977742 mm")))
sketch6.addConstraint(Sketcher.Constraint("DistanceX", 1, 3, 3, 3, Q("345.859279 mm")))
sketch6.addConstraint(Sketcher.Constraint("DistanceY", 3, 3, 0, 3, Q("53.49567 mm")))
sketch6.addConstraint(Sketcher.Constraint("DistanceX", 2, 3, 4, 3, Q("63.652942 mm")))
sketch6.addConstraint(Sketcher.Constraint("DistanceY", -1, 1, 1, 3, Q("559.968547 mm")))
doc.recompute()
hole5 = doc.addObject("PartDesign::Hole", "Hole004")
body.addObject(hole5)
hole5.Profile = sketch6
hole5.ThreadType = "None"
hole5.Diameter = Q("0.125 in")
hole5.DepthType = "Dimension"
hole5.Depth = Q("1.5 in")
hole5.DrillPoint = "Angled"
hole5.DrillPointAngle = 118
hole5.HoleCutType = "Countersink"
hole5.HoleCutDiameter = Q("0.4 in")
hole5.HoleCutCountersinkAngle = 82
hole5.Reversed = True

doc.recompute()
